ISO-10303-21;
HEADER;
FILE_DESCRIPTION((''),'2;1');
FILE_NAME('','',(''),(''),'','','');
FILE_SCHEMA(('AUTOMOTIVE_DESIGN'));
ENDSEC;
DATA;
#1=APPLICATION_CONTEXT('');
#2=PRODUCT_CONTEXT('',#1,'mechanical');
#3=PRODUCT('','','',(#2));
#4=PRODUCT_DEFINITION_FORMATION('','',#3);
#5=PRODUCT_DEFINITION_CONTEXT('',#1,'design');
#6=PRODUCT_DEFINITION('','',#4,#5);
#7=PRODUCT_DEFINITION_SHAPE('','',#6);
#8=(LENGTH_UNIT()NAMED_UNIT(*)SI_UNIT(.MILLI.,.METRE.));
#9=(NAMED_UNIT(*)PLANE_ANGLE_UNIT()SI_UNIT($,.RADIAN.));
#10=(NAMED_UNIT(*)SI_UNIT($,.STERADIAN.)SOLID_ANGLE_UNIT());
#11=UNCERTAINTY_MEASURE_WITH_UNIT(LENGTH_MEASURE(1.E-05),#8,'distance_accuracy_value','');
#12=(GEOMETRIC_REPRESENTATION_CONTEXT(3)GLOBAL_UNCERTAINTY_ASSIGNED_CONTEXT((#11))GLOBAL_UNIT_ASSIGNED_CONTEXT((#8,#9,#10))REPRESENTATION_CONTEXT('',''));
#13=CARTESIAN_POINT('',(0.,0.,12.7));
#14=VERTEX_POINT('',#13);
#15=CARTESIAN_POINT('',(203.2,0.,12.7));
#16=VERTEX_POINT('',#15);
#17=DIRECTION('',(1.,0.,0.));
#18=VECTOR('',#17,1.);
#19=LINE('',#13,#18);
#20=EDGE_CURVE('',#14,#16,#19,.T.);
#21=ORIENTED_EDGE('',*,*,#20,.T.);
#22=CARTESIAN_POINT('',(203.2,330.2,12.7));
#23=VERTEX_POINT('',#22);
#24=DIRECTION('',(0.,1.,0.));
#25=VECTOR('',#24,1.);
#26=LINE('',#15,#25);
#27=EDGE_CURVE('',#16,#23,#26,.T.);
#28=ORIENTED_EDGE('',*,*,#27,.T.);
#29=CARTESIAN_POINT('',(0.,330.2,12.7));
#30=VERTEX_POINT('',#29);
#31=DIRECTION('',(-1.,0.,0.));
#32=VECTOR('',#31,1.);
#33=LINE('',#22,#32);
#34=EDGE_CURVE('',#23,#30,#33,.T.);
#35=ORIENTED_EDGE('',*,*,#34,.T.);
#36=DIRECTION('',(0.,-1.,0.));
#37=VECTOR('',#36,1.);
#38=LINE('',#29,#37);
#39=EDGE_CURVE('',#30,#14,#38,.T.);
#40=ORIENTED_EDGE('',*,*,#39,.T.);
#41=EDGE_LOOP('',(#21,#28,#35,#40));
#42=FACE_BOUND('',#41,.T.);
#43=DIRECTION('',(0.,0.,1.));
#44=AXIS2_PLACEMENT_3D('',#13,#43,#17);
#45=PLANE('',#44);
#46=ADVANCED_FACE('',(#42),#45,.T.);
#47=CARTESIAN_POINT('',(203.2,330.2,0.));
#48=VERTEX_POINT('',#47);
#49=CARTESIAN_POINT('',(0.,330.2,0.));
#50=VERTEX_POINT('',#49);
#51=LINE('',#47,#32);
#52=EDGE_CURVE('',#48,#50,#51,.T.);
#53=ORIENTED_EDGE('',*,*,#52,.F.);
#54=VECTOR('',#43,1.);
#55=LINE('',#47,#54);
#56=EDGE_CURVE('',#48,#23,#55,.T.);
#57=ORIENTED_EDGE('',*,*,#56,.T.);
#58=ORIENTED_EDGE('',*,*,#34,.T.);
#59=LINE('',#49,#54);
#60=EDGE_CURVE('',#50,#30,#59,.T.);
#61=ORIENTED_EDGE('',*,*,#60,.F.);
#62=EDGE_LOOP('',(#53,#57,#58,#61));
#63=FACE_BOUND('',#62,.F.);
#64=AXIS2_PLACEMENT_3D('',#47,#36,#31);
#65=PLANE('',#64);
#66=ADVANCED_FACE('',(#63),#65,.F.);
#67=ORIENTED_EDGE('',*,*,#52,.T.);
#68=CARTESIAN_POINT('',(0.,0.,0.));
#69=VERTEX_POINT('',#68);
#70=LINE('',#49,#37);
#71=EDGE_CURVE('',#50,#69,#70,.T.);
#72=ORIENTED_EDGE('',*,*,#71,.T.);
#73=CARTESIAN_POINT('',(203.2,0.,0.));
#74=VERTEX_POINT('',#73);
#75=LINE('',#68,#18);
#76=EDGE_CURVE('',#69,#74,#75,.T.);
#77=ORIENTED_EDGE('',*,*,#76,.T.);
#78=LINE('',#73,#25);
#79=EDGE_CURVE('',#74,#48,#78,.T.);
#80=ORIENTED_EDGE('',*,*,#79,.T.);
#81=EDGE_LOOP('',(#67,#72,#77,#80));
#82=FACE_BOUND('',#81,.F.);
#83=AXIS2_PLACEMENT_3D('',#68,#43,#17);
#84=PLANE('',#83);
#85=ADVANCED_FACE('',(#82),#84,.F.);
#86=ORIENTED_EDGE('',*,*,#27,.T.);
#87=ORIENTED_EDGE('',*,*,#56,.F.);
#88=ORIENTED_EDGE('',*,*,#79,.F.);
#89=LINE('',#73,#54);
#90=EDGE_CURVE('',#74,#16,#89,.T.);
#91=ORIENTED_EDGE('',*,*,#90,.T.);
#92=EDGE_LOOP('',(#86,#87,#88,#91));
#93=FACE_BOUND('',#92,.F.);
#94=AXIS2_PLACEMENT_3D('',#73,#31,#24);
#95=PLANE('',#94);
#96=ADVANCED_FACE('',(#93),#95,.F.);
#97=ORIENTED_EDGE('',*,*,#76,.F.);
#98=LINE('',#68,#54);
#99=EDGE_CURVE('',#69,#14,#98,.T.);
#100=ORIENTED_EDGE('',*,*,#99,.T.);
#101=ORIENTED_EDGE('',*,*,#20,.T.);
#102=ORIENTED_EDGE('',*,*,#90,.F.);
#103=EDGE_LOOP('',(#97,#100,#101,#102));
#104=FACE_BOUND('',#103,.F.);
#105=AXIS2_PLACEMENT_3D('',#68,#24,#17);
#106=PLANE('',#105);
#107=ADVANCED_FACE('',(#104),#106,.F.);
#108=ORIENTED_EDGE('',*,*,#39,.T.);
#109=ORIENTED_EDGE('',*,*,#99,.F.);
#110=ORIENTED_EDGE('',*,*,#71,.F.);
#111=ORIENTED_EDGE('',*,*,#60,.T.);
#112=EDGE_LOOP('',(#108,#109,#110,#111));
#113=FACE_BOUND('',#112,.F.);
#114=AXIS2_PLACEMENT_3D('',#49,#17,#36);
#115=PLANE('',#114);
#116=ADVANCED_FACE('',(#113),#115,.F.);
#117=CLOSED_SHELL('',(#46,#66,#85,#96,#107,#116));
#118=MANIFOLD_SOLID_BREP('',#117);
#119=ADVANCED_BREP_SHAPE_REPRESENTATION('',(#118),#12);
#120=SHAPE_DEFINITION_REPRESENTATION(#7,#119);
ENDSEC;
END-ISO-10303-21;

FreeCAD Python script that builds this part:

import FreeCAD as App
import Part
import Sketcher

V = App.Vector
Q = App.Units.Quantity

doc = App.newDocument("Part")
body = doc.addObject("PartDesign::Body", "Body")

sketch1 = body.newObject("Sketcher::SketchObject", "Sketch")
sketch1.AttachmentSupport = (doc.getObject("XY_Plane"), [""])
sketch1.MapMode = "FlatFace"
sketch1.addGeometry(Part.LineSegment(V(0, 330, 0), V(0, 0, 0)), False)
sketch1.addGeometry(Part.LineSegment(V(0, 0, 0), V(203, 0, 0)), False)
sketch1.addGeometry(Part.LineSegment(V(203, 0, 0), V(203, 330, 0)), False)
sketch1.addGeometry(Part.LineSegment(V(203, 330, 0), V(0, 330, 0)), False)
sketch1.addConstraint(Sketcher.Constraint("Coincident", 0, 2, 1, 1))
sketch1.addConstraint(Sketcher.Constraint("Coincident", 1, 2, 2, 1))
sketch1.addConstraint(Sketcher.Constraint("Coincident", 2, 2, 3, 1))
sketch1.addConstraint(Sketcher.Constraint("Coincident", 3, 2, 0, 1))
sketch1.addConstraint(Sketcher.Constraint("Vertical", 0))
sketch1.addConstraint(Sketcher.Constraint("Horizontal", 1))
sketch1.addConstraint(Sketcher.Constraint("Vertical", 2))
sketch1.addConstraint(Sketcher.Constraint("Horizontal", 3))
sketch1.addConstraint(Sketcher.Constraint("Coincident", 0, 2, -1, 1))
sketch1.addConstraint(Sketcher.Constraint("DistanceX", 1, 1, 1, 2, Q("8 in")))
sketch1.addConstraint(Sketcher.Constraint("DistanceY", 0, 2, 0, 1, Q("13 in")))
pad1 = body.newObject("PartDesign::Pad", "Pad")
pad1.Profile = sketch1
pad1.Length = Q("0.5 in")

doc.recompute()
